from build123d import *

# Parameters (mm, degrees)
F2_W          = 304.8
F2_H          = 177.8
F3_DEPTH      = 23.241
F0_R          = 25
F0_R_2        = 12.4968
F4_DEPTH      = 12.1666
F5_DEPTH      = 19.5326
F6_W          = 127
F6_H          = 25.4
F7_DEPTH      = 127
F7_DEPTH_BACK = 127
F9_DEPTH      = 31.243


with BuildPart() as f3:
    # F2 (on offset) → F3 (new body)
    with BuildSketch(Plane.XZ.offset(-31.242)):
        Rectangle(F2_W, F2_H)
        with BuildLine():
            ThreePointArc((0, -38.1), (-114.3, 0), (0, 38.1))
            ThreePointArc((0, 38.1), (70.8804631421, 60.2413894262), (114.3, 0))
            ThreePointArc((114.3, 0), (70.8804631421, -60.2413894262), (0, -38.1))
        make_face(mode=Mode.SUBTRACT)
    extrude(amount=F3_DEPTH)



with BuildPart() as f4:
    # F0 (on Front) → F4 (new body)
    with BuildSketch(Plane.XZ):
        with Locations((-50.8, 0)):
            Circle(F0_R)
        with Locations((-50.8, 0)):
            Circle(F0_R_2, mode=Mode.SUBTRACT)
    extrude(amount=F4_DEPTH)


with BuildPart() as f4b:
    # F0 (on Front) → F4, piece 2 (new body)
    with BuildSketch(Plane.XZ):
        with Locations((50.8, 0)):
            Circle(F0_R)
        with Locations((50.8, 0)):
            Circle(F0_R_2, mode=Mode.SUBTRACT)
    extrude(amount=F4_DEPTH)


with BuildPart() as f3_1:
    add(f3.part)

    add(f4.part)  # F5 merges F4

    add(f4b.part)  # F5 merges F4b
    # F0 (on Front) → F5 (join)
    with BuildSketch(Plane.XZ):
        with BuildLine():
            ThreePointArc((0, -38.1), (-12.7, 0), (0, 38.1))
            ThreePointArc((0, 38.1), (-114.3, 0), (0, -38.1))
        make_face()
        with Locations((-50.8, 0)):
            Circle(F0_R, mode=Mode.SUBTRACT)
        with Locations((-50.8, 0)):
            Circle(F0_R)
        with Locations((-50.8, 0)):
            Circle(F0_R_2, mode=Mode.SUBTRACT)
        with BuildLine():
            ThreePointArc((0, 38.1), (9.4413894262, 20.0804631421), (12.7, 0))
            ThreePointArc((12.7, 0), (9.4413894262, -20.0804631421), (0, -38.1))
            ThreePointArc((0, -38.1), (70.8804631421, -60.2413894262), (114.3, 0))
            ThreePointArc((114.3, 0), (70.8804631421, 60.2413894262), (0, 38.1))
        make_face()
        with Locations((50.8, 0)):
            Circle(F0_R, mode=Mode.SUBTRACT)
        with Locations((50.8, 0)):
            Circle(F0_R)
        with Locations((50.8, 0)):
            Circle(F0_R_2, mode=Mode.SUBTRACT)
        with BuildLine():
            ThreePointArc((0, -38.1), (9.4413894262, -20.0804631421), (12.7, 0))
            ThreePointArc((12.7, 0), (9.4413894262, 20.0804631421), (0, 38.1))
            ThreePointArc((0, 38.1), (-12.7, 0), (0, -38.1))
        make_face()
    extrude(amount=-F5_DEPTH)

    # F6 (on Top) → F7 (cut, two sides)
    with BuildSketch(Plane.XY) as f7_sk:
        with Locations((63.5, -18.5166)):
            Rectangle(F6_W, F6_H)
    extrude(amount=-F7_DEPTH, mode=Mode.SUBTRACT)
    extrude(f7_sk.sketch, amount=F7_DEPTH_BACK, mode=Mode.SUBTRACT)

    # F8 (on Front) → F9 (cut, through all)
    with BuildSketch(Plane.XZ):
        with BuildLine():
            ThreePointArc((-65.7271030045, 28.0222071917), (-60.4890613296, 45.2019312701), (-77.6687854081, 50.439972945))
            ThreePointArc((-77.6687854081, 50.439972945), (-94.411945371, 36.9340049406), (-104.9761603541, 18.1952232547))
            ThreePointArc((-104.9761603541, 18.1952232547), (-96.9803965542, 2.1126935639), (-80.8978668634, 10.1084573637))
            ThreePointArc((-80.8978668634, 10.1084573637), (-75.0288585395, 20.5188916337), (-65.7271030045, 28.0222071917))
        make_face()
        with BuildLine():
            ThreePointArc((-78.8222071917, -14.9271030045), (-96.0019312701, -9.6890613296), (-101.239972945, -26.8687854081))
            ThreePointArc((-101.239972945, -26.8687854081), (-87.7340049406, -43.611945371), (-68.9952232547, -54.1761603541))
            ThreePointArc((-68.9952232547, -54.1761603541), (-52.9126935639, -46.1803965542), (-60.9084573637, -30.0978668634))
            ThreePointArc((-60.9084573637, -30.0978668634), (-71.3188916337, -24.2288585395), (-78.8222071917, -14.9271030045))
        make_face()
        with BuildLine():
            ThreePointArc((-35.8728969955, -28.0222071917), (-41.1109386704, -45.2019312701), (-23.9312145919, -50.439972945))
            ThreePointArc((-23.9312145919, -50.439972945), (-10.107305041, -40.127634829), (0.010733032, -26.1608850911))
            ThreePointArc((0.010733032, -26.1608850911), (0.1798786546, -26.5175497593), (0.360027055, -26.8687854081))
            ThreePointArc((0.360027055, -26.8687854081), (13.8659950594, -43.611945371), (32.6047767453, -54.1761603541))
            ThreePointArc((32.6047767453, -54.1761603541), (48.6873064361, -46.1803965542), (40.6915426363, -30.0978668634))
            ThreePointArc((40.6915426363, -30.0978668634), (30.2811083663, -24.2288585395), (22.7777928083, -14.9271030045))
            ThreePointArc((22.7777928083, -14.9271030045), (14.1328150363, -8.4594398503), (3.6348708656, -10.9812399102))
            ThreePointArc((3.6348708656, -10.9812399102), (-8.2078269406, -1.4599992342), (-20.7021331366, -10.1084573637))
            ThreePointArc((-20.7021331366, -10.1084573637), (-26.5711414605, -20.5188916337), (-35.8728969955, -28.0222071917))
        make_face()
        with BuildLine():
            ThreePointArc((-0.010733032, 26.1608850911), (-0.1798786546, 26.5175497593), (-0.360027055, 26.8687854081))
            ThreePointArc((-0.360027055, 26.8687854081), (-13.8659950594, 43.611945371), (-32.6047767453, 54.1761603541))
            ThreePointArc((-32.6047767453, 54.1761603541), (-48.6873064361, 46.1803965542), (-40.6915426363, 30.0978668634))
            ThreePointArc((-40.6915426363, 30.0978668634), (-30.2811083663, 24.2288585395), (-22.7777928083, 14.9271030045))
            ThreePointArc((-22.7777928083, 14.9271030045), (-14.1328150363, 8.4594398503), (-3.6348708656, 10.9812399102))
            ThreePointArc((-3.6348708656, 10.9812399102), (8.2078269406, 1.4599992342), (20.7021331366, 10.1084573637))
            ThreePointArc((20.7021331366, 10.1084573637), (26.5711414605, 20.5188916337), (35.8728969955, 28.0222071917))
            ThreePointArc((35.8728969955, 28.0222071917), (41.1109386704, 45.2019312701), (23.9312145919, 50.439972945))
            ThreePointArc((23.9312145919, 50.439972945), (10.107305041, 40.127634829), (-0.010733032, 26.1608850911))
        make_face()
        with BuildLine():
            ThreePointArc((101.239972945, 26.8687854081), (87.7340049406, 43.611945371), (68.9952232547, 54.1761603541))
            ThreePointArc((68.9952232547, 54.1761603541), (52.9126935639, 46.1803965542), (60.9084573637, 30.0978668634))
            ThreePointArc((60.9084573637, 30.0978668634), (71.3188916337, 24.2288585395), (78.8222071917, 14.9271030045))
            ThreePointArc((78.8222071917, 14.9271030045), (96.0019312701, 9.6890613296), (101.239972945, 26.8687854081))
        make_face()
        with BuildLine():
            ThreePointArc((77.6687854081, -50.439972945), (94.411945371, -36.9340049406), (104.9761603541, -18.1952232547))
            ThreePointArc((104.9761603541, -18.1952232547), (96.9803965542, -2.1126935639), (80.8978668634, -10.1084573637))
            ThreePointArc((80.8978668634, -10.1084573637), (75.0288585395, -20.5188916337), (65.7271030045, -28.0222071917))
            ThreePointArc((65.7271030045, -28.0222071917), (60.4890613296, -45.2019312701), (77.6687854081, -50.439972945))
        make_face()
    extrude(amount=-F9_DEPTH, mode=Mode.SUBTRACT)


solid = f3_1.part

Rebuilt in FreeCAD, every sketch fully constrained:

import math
import FreeCAD as App
import Part
import Sketcher
Q = App.Units.Quantity

doc = App.newDocument("Part")
body = doc.addObject("PartDesign::Body", "Body")

sketch1 = body.newObject("Sketcher::SketchObject", "Sketch")
sketch1.AttachmentSupport = (doc.getObject("XZ_Plane"), [""])
sketch1.MapMode = "FlatFace"
sketch1.AttachmentOffset = App.Placement(App.Vector(0, 0, -1.23 * 25.4), App.Rotation())
sketch1.addGeometry([
    Part.LineSegment(App.Vector(-152, 89, 0), App.Vector(-152, -89, 0)),
    Part.LineSegment(App.Vector(-152, -89, 0), App.Vector(152, -89, 0)),
    Part.LineSegment(App.Vector(152, -89, 0), App.Vector(152, 89, 0)),
    Part.LineSegment(App.Vector(152, 89, 0), App.Vector(-152, 89, 0)),
    Part.ArcOfCircle(Part.Circle(App.Vector(51, 0, 0), App.Vector(0, 0, 1), 64), math.radians(-143), math.radians(143)),
    Part.ArcOfCircle(Part.Circle(App.Vector(-51, 0, 0), App.Vector(0, 0, 1), 64), math.radians(37), math.radians(323)),
], False)
sketch1.addConstraint([
    Sketcher.Constraint("Coincident", 0, 2, 1, 1),
    Sketcher.Constraint("Coincident", 1, 2, 2, 1),
    Sketcher.Constraint("Coincident", 2, 2, 3, 1),
    Sketcher.Constraint("Coincident", 3, 2, 0, 1),
    Sketcher.Constraint("Coincident", 4, 1, 5, 2),
    Sketcher.Constraint("Coincident", 5, 1, 4, 2),
    Sketcher.Constraint("Vertical", 0),
    Sketcher.Constraint("Horizontal", 1),
    Sketcher.Constraint("Vertical", 2),
    Sketcher.Constraint("Horizontal", 3),
    Sketcher.Constraint("Equal", 4, 5),
    Sketcher.Constraint("Symmetric", 4, 3, 5, 3, -1, 1),
    Sketcher.Constraint("Symmetric", 0, 2, 2, 2, -1, 1),
    Sketcher.Constraint("PointOnObject", 4, 3, -1),
    Sketcher.Constraint("Radius", 4, Q("2.5 in")),
    Sketcher.Constraint("DistanceX", 1, 1, 1, 2, Q("12 in")),
    Sketcher.Constraint("DistanceY", 0, 2, 0, 1, Q("7 in")),
    Sketcher.Constraint("DistanceX", -1, 1, 4, 3, Q("2 in")),
])
pad1 = body.newObject("PartDesign::Pad", "Pad")
pad1.Profile = sketch1
pad1.Length = Q("0.915 in")
body2 = doc.addObject("PartDesign::Body", "Body001")

sketch2 = body2.newObject("Sketcher::SketchObject", "Sketch001")
sketch2.AttachmentSupport = (doc.getObject("XZ_Plane001"), [""])
sketch2.MapMode = "FlatFace"
sketch2.addGeometry([
    Part.Circle(App.Vector(-51, 0, 0), App.Vector(0, 0, 1), 25),
    Part.Circle(App.Vector(-51, 0, 0), App.Vector(0, 0, 1), 12),
], False)
sketch2.addConstraint([
    Sketcher.Constraint("Coincident", 1, 3, 0, 3),
    Sketcher.Constraint("PointOnObject", 0, 3, -1),
    Sketcher.Constraint("Diameter", 1, Q("0.984 in")),
    Sketcher.Constraint("DistanceX", 0, 3, -1, 1, Q("2 in")),
    Sketcher.Constraint("Diameter", 0, 50.0),
])
pad2 = body2.newObject("PartDesign::Pad", "Pad001")
pad2.Profile = sketch2
pad2.Length = Q("0.479 in")
body3 = doc.addObject("PartDesign::Body", "Body002")

sketch3 = body3.newObject("Sketcher::SketchObject", "Sketch002")
sketch3.AttachmentSupport = (doc.getObject("XZ_Plane002"), [""])
sketch3.MapMode = "FlatFace"
sketch3.addGeometry([
    Part.Circle(App.Vector(51, 0, 0), App.Vector(0, 0, 1), 25),
    Part.Circle(App.Vector(51, 0, 0), App.Vector(0, 0, 1), 12),
], False)
sketch3.addConstraint([
    Sketcher.Constraint("Coincident", 1, 3, 0, 3),
    Sketcher.Constraint("PointOnObject", 0, 3, -1),
    Sketcher.Constraint("Diameter", 1, Q("0.984 in")),
    Sketcher.Constraint("DistanceX", -1, 1, 0, 3, Q("2 in")),
    Sketcher.Constraint("Diameter", 0, 50.0),
])
pad3 = body3.newObject("PartDesign::Pad", "Pad002")
pad3.Profile = sketch3
pad3.Length = Q("0.479 in")
body.AllowCompound = True
doc.recompute()

boolean = body.newObject("PartDesign::Boolean", "Boolean")
boolean.Type = "Fuse"
boolean.addObjects([body2])
doc.recompute()

boolean2 = body.newObject("PartDesign::Boolean", "Boolean001")
boolean2.Type = "Fuse"
boolean2.addObjects([body3])

sketch4 = body.newObject("Sketcher::SketchObject", "Sketch003")
sketch4.AttachmentSupport = (doc.getObject("XZ_Plane"), [""])
sketch4.MapMode = "FlatFace"
sketch4.addGeometry([
    Part.ArcOfCircle(Part.Circle(App.Vector(-51, 0, 0), App.Vector(0, 0, 1), 64), math.radians(37), math.radians(323)),
    Part.ArcOfCircle(Part.Circle(App.Vector(51, 0, 0), App.Vector(0, 0, 1), 64), math.radians(-143), math.radians(143)),
    Part.Circle(App.Vector(-51, 0, 0), App.Vector(0, 0, 1), 12),
    Part.Circle(App.Vector(51, 0, 0), App.Vector(0, 0, 1), 12),
], False)
sketch4.addConstraint([
    Sketcher.Constraint("Coincident", 0, 1, 1, 2),
    Sketcher.Constraint("Coincident", 1, 1, 0, 2),
    Sketcher.Constraint("Coincident", 2, 3, 0, 3),
    Sketcher.Constraint("Coincident", 3, 3, 1, 3),
    Sketcher.Constraint("Equal", 0, 1),
    Sketcher.Constraint("Equal", 2, 3),
    Sketcher.Constraint("Symmetric", 0, 3, 1, 3, -1, 1),
    Sketcher.Constraint("PointOnObject", 0, 3, -1),
    Sketcher.Constraint("Radius", 0, Q("2.5 in")),
    Sketcher.Constraint("Diameter", 2, Q("0.984 in")),
    Sketcher.Constraint("DistanceX", 0, 3, -1, 1, Q("2 in")),
])
pad4 = body.newObject("PartDesign::Pad", "Pad003")
pad4.Profile = sketch4
pad4.Length = Q("0.769 in")
pad4.Reversed = True

sketch5 = body.newObject("Sketcher::SketchObject", "Sketch004")
sketch5.AttachmentSupport = (doc.getObject("XY_Plane"), [""])
sketch5.MapMode = "FlatFace"
sketch5.addGeometry([
    Part.LineSegment(App.Vector(0, -6, 0), App.Vector(0, -31, 0)),
    Part.LineSegment(App.Vector(0, -31, 0), App.Vector(127, -31, 0)),
    Part.LineSegment(App.Vector(127, -31, 0), App.Vector(127, -6, 0)),
    Part.LineSegment(App.Vector(127, -6, 0), App.Vector(0, -6, 0)),
], False)
sketch5.addConstraint([
    Sketcher.Constraint("Coincident", 0, 2, 1, 1),
    Sketcher.Constraint("Coincident", 1, 2, 2, 1),
    Sketcher.Constraint("Coincident", 2, 2, 3, 1),
    Sketcher.Constraint("Coincident", 3, 2, 0, 1),
    Sketcher.Constraint("Vertical", 0),
    Sketcher.Constraint("Horizontal", 1),
    Sketcher.Constraint("Vertical", 2),
    Sketcher.Constraint("Horizontal", 3),
    Sketcher.Constraint("PointOnObject", 0, 2, -2),
    Sketcher.Constraint("DistanceX", 1, 1, 1, 2, Q("5 in")),
    Sketcher.Constraint("DistanceY", 0, 2, 0, 1, Q("1 in")),
    Sketcher.Constraint("DistanceY", 0, 2, -1, 1, Q("1.229 in")),
])
pocket1 = body.newObject("PartDesign::Pocket", "Pocket")
pocket1.Profile = sketch5
pocket1.Type = "ThroughAll"
pocket1.Midplane = True

sketch6 = body.newObject("Sketcher::SketchObject", "Sketch005")
sketch6.AttachmentSupport = (doc.getObject("XZ_Plane"), [""])
sketch6.MapMode = "FlatFace"
sketch6.addGeometry([
    Part.ArcOfCircle(Part.Circle(App.Vector(-71.7, 39.2, 0), App.Vector(0, 0, 1), 12.7), math.radians(-62), math.radians(118)),
    Part.ArcOfCircle(Part.Circle(App.Vector(-50.8, 0, 0), App.Vector(0, 0, 1), 57.2), math.radians(118), math.radians(161)),
    Part.ArcOfCircle(Part.Circle(App.Vector(-92.9, 14.2, 0), App.Vector(0, 0, 1), 12.7), math.radians(161), math.radians(341)),
    Part.ArcOfCircle(Part.Circle(App.Vector(-50.8, 0, 0), App.Vector(0, 0, 1), 31.8), math.radians(118), math.radians(161)),
    Part.ArcOfCircle(Part.Circle(App.Vector(-90, -20.9, 0), App.Vector(0, 0, 1), 12.7), math.radians(28), math.radians(208)),
    Part.ArcOfCircle(Part.Circle(App.Vector(-50.8, 0, 0), App.Vector(0, 0, 1), 57.2), math.radians(-152), math.radians(-109)),
    Part.ArcOfCircle(Part.Circle(App.Vector(-65, -42.1, 0), App.Vector(0, 0, 1), 12.7), math.radians(-109), math.radians(71)),
    Part.ArcOfCircle(Part.Circle(App.Vector(-50.8, 0, 0), App.Vector(0, 0, 1), 31.8), math.radians(-152), math.radians(-109)),
    Part.ArcOfCircle(Part.Circle(App.Vector(-29.9, -39.2, 0), App.Vector(0, 0, 1), 12.7), math.radians(118), math.radians(298)),
    Part.ArcOfCircle(Part.Circle(App.Vector(-50.8, 0, 0), App.Vector(0, 0, 1), 57.2), math.radians(-62), math.radians(-27)),
    Part.ArcOfCircle(Part.Circle(App.Vector(11.6, -20.9, 0), App.Vector(0, 0, 1), 12.7), math.radians(-155.52), math.radians(-151.96)),
    Part.ArcOfCircle(Part.Circle(App.Vector(50.8, 0, 0), App.Vector(0, 0, 1), 57.2), math.radians(-152), math.radians(-109)),
    Part.ArcOfCircle(Part.Circle(App.Vector(36.6, -42.1, 0), App.Vector(0, 0, 1), 12.7), math.radians(-109), math.radians(71)),
    Part.ArcOfCircle(Part.Circle(App.Vector(50.8, 0, 0), App.Vector(0, 0, 1), 31.8), math.radians(-152), math.radians(-109)),
    Part.ArcOfCircle(Part.Circle(App.Vector(11.6, -20.9, 0), App.Vector(0, 0, 1), 12.7), math.radians(28), math.radians(129)),
    Part.ArcOfCircle(Part.Circle(App.Vector(-8.7, -14.2, 0), App.Vector(0, 0, 1), 12.7), math.radians(14), math.radians(161)),
    Part.ArcOfCircle(Part.Circle(App.Vector(-50.8, 0, 0), App.Vector(0, 0, 1), 31.8), math.radians(-62), math.radians(-19)),
    Part.ArcOfCircle(Part.Circle(App.Vector(-11.6, 20.9, 0), App.Vector(0, 0, 1), 12.7), math.radians(24.48), math.radians(28.04)),
    Part.ArcOfCircle(Part.Circle(App.Vector(-50.8, 0, 0), App.Vector(0, 0, 1), 57.2), math.radians(28), math.radians(71)),
    Part.ArcOfCircle(Part.Circle(App.Vector(-36.6, 42.1, 0), App.Vector(0, 0, 1), 12.7), math.radians(71), math.radians(251)),
    Part.ArcOfCircle(Part.Circle(App.Vector(-50.8, 0, 0), App.Vector(0, 0, 1), 31.8), math.radians(28), math.radians(71)),
    Part.ArcOfCircle(Part.Circle(App.Vector(-11.6, 20.9, 0), App.Vector(0, 0, 1), 12.7), math.radians(-152), math.radians(-51)),
    Part.ArcOfCircle(Part.Circle(App.Vector(8.7, 14.2, 0), App.Vector(0, 0, 1), 12.7), math.radians(-166), math.radians(-19)),
    Part.ArcOfCircle(Part.Circle(App.Vector(50.8, 0, 0), App.Vector(0, 0, 1), 31.8), math.radians(118), math.radians(161)),
    Part.ArcOfCircle(Part.Circle(App.Vector(29.9, 39.2, 0), App.Vector(0, 0, 1), 12.7), math.radians(-62), math.radians(118)),
    Part.ArcOfCircle(Part.Circle(App.Vector(50.8, 0, 0), App.Vector(0, 0, 1), 57.2), math.radians(118), math.radians(153)),
    Part.ArcOfCircle(Part.Circle(App.Vector(50.8, 0, 0), App.Vector(0, 0, 1), 57.2), math.radians(28), math.radians(71)),
    Part.ArcOfCircle(Part.Circle(App.Vector(65, 42.1, 0), App.Vector(0, 0, 1), 12.7), math.radians(71), math.radians(251)),
    Part.ArcOfCircle(Part.Circle(App.Vector(50.8, 0, 0), App.Vector(0, 0, 1), 31.8), math.radians(28), math.radians(71)),
    Part.ArcOfCircle(Part.Circle(App.Vector(90, 20.9, 0), App.Vector(0, 0, 1), 12.7), math.radians(-152), math.radians(28)),
    Part.ArcOfCircle(Part.Circle(App.Vector(50.8, 0, 0), App.Vector(0, 0, 1), 57.2), math.radians(-62), math.radians(-19)),
    Part.ArcOfCircle(Part.Circle(App.Vector(92.9, -14.2, 0), App.Vector(0, 0, 1), 12.7), math.radians(-19), math.radians(161)),
    Part.ArcOfCircle(Part.Circle(App.Vector(50.8, 0, 0), App.Vector(0, 0, 1), 31.8), math.radians(-62), math.radians(-19)),
    Part.ArcOfCircle(Part.Circle(App.Vector(71.7, -39.2, 0), App.Vector(0, 0, 1), 12.7), math.radians(118), math.radians(298)),
], False)
sketch6.addConstraint([
    Sketcher.Constraint("Tangent", 0, 2, 1, 1),
    Sketcher.Constraint("Tangent", 1, 2, 2, 1),
    Sketcher.Constraint("Tangent", 2, 2, 3, 2),
    Sketcher.Constraint("Tangent", 3, 1, 0, 1),
    Sketcher.Constraint("Tangent", 4, 2, 5, 1),
    Sketcher.Constraint("Tangent", 5, 2, 6, 1),
    Sketcher.Constraint("Tangent", 6, 2, 7, 2),
    Sketcher.Constraint("Tangent", 7, 1, 4, 1),
    Sketcher.Constraint("Tangent", 8, 2, 9, 1),
    Sketcher.Constraint("Coincident", 9, 2, 10, 1),
    Sketcher.Constraint("Tangent", 10, 2, 11, 1),
    Sketcher.Constraint("Tangent", 11, 2, 12, 1),
    Sketcher.Constraint("Tangent", 12, 2, 13, 2),
    Sketcher.Constraint("Tangent", 13, 1, 14, 1),
    Sketcher.Constraint("Coincident", 14, 2, 15, 1),
    Sketcher.Constraint("Tangent", 15, 2, 16, 2),
    Sketcher.Constraint("Tangent", 16, 1, 8, 1),
    Sketcher.Constraint("Tangent", 17, 2, 18, 1),
    Sketcher.Constraint("Tangent", 18, 2, 19, 1),
    Sketcher.Constraint("Tangent", 19, 2, 20, 2),
    Sketcher.Constraint("Tangent", 20, 1, 21, 1),
    Sketcher.Constraint("Coincident", 21, 2, 22, 1),
    Sketcher.Constraint("Tangent", 22, 2, 23, 2),
    Sketcher.Constraint("Tangent", 23, 1, 24, 1),
    Sketcher.Constraint("Tangent", 24, 2, 25, 1),
    Sketcher.Constraint("Coincident", 25, 2, 17, 1),
    Sketcher.Constraint("Tangent", 26, 2, 27, 1),
    Sketcher.Constraint("Tangent", 27, 2, 28, 2),
    Sketcher.Constraint("Tangent", 28, 1, 29, 1),
    Sketcher.Constraint("Tangent", 29, 2, 26, 1),
    Sketcher.Constraint("Tangent", 30, 2, 31, 1),
    Sketcher.Constraint("Tangent", 31, 2, 32, 2),
    Sketcher.Constraint("Tangent", 32, 1, 33, 1),
    Sketcher.Constraint("Tangent", 33, 2, 30, 1),
    Sketcher.Constraint("Coincident", 3, 3, 1, 3),
    Sketcher.Constraint("Coincident", 5, 3, 1, 3),
    Sketcher.Constraint("Coincident", 7, 3, 1, 3),
    Sketcher.Constraint("Coincident", 9, 3, 1, 3),
    Sketcher.Constraint("Coincident", 13, 3, 11, 3),
    Sketcher.Constraint("Coincident", 14, 3, 10, 3),
    Sketcher.Constraint("Coincident", 16, 3, 1, 3),
    Sketcher.Constraint("Coincident", 18, 3, 1, 3),
    Sketcher.Constraint("Coincident", 20, 3, 1, 3),
    Sketcher.Constraint("Coincident", 21, 3, 17, 3),
    Sketcher.Constraint("Coincident", 23, 3, 11, 3),
    Sketcher.Constraint("Coincident", 25, 3, 11, 3),
    Sketcher.Constraint("Coincident", 26, 3, 11, 3),
    Sketcher.Constraint("Coincident", 28, 3, 11, 3),
    Sketcher.Constraint("Coincident", 30, 3, 11, 3),
    Sketcher.Constraint("Coincident", 32, 3, 11, 3),
    Sketcher.Constraint("Equal", 2, 4),
    Sketcher.Constraint("Equal", 1, 5),
    Sketcher.Constraint("Equal", 6, 8),
    Sketcher.Constraint("Equal", 5, 9),
    Sketcher.Constraint("Equal", 8, 10),
    Sketcher.Constraint("Equal", 9, 11),
    Sketcher.Constraint("Equal", 10, 12),
    Sketcher.Constraint("Equal", 14, 15),
    Sketcher.Constraint("Equal", 15, 17),
    Sketcher.Constraint("Equal", 11, 18),
    Sketcher.Constraint("Equal", 17, 19),
    Sketcher.Constraint("Equal", 21, 22),
    Sketcher.Constraint("Equal", 20, 23),
    Sketcher.Constraint("Equal", 22, 24),
    Sketcher.Constraint("Equal", 25, 26),
    Sketcher.Constraint("Equal", 24, 27),
    Sketcher.Constraint("Equal", 26, 30),
    Sketcher.Constraint("Equal", 29, 31),
    Sketcher.Constraint("Symmetric", 1, 3, 11, 3, -1, 1),
    Sketcher.Constraint("Symmetric", 14, 2, 21, 2, -1, 1),
    Sketcher.Constraint("PointOnObject", 1, 3, -1),
    Sketcher.Constraint("Horizontal", 4, 3, 10, 3),
    Sketcher.Constraint("Horizontal", 6, 3, 12, 3),
    Sketcher.Constraint("Horizontal", 2, 3, 22, 3),
    Sketcher.Constraint("Horizontal", 0, 3, 24, 3),
    Sketcher.Constraint("Horizontal", 19, 3, 27, 3),
    Sketcher.Constraint("Horizontal", 21, 3, 29, 3),
    Sketcher.Constraint("Horizontal", 15, 3, 31, 3),
    Sketcher.Constraint("Horizontal", 8, 3, 33, 3),
    Sketcher.Constraint("Radius", 0, Q("0.5 in")),
    Sketcher.Constraint("Radius", 1, Q("2.25 in")),
    Sketcher.Constraint("DistanceX", 1, 3, -1, 1, Q("2 in")),
    Sketcher.Constraint("DistanceY", -1, 1, 0, 3, 39.23109),
    Sketcher.Constraint("DistanceY", -1, 1, 2, 3, 14.15184),
    Sketcher.Constraint("DistanceX", 4, 3, -1, 1, 90.03109),
    Sketcher.Constraint("DistanceX", 6, 3, -1, 1, 64.95184),
    Sketcher.Constraint("DistanceY", 8, 3, -1, 1, 39.23109),
    Sketcher.Constraint("DistanceX", 19, 3, -1, 1, 36.64816),
])
pocket2 = body.newObject("PartDesign::Pocket", "Pocket001")
pocket2.Profile = sketch6
pocket2.Type = "ThroughAll"

doc.recompute()
